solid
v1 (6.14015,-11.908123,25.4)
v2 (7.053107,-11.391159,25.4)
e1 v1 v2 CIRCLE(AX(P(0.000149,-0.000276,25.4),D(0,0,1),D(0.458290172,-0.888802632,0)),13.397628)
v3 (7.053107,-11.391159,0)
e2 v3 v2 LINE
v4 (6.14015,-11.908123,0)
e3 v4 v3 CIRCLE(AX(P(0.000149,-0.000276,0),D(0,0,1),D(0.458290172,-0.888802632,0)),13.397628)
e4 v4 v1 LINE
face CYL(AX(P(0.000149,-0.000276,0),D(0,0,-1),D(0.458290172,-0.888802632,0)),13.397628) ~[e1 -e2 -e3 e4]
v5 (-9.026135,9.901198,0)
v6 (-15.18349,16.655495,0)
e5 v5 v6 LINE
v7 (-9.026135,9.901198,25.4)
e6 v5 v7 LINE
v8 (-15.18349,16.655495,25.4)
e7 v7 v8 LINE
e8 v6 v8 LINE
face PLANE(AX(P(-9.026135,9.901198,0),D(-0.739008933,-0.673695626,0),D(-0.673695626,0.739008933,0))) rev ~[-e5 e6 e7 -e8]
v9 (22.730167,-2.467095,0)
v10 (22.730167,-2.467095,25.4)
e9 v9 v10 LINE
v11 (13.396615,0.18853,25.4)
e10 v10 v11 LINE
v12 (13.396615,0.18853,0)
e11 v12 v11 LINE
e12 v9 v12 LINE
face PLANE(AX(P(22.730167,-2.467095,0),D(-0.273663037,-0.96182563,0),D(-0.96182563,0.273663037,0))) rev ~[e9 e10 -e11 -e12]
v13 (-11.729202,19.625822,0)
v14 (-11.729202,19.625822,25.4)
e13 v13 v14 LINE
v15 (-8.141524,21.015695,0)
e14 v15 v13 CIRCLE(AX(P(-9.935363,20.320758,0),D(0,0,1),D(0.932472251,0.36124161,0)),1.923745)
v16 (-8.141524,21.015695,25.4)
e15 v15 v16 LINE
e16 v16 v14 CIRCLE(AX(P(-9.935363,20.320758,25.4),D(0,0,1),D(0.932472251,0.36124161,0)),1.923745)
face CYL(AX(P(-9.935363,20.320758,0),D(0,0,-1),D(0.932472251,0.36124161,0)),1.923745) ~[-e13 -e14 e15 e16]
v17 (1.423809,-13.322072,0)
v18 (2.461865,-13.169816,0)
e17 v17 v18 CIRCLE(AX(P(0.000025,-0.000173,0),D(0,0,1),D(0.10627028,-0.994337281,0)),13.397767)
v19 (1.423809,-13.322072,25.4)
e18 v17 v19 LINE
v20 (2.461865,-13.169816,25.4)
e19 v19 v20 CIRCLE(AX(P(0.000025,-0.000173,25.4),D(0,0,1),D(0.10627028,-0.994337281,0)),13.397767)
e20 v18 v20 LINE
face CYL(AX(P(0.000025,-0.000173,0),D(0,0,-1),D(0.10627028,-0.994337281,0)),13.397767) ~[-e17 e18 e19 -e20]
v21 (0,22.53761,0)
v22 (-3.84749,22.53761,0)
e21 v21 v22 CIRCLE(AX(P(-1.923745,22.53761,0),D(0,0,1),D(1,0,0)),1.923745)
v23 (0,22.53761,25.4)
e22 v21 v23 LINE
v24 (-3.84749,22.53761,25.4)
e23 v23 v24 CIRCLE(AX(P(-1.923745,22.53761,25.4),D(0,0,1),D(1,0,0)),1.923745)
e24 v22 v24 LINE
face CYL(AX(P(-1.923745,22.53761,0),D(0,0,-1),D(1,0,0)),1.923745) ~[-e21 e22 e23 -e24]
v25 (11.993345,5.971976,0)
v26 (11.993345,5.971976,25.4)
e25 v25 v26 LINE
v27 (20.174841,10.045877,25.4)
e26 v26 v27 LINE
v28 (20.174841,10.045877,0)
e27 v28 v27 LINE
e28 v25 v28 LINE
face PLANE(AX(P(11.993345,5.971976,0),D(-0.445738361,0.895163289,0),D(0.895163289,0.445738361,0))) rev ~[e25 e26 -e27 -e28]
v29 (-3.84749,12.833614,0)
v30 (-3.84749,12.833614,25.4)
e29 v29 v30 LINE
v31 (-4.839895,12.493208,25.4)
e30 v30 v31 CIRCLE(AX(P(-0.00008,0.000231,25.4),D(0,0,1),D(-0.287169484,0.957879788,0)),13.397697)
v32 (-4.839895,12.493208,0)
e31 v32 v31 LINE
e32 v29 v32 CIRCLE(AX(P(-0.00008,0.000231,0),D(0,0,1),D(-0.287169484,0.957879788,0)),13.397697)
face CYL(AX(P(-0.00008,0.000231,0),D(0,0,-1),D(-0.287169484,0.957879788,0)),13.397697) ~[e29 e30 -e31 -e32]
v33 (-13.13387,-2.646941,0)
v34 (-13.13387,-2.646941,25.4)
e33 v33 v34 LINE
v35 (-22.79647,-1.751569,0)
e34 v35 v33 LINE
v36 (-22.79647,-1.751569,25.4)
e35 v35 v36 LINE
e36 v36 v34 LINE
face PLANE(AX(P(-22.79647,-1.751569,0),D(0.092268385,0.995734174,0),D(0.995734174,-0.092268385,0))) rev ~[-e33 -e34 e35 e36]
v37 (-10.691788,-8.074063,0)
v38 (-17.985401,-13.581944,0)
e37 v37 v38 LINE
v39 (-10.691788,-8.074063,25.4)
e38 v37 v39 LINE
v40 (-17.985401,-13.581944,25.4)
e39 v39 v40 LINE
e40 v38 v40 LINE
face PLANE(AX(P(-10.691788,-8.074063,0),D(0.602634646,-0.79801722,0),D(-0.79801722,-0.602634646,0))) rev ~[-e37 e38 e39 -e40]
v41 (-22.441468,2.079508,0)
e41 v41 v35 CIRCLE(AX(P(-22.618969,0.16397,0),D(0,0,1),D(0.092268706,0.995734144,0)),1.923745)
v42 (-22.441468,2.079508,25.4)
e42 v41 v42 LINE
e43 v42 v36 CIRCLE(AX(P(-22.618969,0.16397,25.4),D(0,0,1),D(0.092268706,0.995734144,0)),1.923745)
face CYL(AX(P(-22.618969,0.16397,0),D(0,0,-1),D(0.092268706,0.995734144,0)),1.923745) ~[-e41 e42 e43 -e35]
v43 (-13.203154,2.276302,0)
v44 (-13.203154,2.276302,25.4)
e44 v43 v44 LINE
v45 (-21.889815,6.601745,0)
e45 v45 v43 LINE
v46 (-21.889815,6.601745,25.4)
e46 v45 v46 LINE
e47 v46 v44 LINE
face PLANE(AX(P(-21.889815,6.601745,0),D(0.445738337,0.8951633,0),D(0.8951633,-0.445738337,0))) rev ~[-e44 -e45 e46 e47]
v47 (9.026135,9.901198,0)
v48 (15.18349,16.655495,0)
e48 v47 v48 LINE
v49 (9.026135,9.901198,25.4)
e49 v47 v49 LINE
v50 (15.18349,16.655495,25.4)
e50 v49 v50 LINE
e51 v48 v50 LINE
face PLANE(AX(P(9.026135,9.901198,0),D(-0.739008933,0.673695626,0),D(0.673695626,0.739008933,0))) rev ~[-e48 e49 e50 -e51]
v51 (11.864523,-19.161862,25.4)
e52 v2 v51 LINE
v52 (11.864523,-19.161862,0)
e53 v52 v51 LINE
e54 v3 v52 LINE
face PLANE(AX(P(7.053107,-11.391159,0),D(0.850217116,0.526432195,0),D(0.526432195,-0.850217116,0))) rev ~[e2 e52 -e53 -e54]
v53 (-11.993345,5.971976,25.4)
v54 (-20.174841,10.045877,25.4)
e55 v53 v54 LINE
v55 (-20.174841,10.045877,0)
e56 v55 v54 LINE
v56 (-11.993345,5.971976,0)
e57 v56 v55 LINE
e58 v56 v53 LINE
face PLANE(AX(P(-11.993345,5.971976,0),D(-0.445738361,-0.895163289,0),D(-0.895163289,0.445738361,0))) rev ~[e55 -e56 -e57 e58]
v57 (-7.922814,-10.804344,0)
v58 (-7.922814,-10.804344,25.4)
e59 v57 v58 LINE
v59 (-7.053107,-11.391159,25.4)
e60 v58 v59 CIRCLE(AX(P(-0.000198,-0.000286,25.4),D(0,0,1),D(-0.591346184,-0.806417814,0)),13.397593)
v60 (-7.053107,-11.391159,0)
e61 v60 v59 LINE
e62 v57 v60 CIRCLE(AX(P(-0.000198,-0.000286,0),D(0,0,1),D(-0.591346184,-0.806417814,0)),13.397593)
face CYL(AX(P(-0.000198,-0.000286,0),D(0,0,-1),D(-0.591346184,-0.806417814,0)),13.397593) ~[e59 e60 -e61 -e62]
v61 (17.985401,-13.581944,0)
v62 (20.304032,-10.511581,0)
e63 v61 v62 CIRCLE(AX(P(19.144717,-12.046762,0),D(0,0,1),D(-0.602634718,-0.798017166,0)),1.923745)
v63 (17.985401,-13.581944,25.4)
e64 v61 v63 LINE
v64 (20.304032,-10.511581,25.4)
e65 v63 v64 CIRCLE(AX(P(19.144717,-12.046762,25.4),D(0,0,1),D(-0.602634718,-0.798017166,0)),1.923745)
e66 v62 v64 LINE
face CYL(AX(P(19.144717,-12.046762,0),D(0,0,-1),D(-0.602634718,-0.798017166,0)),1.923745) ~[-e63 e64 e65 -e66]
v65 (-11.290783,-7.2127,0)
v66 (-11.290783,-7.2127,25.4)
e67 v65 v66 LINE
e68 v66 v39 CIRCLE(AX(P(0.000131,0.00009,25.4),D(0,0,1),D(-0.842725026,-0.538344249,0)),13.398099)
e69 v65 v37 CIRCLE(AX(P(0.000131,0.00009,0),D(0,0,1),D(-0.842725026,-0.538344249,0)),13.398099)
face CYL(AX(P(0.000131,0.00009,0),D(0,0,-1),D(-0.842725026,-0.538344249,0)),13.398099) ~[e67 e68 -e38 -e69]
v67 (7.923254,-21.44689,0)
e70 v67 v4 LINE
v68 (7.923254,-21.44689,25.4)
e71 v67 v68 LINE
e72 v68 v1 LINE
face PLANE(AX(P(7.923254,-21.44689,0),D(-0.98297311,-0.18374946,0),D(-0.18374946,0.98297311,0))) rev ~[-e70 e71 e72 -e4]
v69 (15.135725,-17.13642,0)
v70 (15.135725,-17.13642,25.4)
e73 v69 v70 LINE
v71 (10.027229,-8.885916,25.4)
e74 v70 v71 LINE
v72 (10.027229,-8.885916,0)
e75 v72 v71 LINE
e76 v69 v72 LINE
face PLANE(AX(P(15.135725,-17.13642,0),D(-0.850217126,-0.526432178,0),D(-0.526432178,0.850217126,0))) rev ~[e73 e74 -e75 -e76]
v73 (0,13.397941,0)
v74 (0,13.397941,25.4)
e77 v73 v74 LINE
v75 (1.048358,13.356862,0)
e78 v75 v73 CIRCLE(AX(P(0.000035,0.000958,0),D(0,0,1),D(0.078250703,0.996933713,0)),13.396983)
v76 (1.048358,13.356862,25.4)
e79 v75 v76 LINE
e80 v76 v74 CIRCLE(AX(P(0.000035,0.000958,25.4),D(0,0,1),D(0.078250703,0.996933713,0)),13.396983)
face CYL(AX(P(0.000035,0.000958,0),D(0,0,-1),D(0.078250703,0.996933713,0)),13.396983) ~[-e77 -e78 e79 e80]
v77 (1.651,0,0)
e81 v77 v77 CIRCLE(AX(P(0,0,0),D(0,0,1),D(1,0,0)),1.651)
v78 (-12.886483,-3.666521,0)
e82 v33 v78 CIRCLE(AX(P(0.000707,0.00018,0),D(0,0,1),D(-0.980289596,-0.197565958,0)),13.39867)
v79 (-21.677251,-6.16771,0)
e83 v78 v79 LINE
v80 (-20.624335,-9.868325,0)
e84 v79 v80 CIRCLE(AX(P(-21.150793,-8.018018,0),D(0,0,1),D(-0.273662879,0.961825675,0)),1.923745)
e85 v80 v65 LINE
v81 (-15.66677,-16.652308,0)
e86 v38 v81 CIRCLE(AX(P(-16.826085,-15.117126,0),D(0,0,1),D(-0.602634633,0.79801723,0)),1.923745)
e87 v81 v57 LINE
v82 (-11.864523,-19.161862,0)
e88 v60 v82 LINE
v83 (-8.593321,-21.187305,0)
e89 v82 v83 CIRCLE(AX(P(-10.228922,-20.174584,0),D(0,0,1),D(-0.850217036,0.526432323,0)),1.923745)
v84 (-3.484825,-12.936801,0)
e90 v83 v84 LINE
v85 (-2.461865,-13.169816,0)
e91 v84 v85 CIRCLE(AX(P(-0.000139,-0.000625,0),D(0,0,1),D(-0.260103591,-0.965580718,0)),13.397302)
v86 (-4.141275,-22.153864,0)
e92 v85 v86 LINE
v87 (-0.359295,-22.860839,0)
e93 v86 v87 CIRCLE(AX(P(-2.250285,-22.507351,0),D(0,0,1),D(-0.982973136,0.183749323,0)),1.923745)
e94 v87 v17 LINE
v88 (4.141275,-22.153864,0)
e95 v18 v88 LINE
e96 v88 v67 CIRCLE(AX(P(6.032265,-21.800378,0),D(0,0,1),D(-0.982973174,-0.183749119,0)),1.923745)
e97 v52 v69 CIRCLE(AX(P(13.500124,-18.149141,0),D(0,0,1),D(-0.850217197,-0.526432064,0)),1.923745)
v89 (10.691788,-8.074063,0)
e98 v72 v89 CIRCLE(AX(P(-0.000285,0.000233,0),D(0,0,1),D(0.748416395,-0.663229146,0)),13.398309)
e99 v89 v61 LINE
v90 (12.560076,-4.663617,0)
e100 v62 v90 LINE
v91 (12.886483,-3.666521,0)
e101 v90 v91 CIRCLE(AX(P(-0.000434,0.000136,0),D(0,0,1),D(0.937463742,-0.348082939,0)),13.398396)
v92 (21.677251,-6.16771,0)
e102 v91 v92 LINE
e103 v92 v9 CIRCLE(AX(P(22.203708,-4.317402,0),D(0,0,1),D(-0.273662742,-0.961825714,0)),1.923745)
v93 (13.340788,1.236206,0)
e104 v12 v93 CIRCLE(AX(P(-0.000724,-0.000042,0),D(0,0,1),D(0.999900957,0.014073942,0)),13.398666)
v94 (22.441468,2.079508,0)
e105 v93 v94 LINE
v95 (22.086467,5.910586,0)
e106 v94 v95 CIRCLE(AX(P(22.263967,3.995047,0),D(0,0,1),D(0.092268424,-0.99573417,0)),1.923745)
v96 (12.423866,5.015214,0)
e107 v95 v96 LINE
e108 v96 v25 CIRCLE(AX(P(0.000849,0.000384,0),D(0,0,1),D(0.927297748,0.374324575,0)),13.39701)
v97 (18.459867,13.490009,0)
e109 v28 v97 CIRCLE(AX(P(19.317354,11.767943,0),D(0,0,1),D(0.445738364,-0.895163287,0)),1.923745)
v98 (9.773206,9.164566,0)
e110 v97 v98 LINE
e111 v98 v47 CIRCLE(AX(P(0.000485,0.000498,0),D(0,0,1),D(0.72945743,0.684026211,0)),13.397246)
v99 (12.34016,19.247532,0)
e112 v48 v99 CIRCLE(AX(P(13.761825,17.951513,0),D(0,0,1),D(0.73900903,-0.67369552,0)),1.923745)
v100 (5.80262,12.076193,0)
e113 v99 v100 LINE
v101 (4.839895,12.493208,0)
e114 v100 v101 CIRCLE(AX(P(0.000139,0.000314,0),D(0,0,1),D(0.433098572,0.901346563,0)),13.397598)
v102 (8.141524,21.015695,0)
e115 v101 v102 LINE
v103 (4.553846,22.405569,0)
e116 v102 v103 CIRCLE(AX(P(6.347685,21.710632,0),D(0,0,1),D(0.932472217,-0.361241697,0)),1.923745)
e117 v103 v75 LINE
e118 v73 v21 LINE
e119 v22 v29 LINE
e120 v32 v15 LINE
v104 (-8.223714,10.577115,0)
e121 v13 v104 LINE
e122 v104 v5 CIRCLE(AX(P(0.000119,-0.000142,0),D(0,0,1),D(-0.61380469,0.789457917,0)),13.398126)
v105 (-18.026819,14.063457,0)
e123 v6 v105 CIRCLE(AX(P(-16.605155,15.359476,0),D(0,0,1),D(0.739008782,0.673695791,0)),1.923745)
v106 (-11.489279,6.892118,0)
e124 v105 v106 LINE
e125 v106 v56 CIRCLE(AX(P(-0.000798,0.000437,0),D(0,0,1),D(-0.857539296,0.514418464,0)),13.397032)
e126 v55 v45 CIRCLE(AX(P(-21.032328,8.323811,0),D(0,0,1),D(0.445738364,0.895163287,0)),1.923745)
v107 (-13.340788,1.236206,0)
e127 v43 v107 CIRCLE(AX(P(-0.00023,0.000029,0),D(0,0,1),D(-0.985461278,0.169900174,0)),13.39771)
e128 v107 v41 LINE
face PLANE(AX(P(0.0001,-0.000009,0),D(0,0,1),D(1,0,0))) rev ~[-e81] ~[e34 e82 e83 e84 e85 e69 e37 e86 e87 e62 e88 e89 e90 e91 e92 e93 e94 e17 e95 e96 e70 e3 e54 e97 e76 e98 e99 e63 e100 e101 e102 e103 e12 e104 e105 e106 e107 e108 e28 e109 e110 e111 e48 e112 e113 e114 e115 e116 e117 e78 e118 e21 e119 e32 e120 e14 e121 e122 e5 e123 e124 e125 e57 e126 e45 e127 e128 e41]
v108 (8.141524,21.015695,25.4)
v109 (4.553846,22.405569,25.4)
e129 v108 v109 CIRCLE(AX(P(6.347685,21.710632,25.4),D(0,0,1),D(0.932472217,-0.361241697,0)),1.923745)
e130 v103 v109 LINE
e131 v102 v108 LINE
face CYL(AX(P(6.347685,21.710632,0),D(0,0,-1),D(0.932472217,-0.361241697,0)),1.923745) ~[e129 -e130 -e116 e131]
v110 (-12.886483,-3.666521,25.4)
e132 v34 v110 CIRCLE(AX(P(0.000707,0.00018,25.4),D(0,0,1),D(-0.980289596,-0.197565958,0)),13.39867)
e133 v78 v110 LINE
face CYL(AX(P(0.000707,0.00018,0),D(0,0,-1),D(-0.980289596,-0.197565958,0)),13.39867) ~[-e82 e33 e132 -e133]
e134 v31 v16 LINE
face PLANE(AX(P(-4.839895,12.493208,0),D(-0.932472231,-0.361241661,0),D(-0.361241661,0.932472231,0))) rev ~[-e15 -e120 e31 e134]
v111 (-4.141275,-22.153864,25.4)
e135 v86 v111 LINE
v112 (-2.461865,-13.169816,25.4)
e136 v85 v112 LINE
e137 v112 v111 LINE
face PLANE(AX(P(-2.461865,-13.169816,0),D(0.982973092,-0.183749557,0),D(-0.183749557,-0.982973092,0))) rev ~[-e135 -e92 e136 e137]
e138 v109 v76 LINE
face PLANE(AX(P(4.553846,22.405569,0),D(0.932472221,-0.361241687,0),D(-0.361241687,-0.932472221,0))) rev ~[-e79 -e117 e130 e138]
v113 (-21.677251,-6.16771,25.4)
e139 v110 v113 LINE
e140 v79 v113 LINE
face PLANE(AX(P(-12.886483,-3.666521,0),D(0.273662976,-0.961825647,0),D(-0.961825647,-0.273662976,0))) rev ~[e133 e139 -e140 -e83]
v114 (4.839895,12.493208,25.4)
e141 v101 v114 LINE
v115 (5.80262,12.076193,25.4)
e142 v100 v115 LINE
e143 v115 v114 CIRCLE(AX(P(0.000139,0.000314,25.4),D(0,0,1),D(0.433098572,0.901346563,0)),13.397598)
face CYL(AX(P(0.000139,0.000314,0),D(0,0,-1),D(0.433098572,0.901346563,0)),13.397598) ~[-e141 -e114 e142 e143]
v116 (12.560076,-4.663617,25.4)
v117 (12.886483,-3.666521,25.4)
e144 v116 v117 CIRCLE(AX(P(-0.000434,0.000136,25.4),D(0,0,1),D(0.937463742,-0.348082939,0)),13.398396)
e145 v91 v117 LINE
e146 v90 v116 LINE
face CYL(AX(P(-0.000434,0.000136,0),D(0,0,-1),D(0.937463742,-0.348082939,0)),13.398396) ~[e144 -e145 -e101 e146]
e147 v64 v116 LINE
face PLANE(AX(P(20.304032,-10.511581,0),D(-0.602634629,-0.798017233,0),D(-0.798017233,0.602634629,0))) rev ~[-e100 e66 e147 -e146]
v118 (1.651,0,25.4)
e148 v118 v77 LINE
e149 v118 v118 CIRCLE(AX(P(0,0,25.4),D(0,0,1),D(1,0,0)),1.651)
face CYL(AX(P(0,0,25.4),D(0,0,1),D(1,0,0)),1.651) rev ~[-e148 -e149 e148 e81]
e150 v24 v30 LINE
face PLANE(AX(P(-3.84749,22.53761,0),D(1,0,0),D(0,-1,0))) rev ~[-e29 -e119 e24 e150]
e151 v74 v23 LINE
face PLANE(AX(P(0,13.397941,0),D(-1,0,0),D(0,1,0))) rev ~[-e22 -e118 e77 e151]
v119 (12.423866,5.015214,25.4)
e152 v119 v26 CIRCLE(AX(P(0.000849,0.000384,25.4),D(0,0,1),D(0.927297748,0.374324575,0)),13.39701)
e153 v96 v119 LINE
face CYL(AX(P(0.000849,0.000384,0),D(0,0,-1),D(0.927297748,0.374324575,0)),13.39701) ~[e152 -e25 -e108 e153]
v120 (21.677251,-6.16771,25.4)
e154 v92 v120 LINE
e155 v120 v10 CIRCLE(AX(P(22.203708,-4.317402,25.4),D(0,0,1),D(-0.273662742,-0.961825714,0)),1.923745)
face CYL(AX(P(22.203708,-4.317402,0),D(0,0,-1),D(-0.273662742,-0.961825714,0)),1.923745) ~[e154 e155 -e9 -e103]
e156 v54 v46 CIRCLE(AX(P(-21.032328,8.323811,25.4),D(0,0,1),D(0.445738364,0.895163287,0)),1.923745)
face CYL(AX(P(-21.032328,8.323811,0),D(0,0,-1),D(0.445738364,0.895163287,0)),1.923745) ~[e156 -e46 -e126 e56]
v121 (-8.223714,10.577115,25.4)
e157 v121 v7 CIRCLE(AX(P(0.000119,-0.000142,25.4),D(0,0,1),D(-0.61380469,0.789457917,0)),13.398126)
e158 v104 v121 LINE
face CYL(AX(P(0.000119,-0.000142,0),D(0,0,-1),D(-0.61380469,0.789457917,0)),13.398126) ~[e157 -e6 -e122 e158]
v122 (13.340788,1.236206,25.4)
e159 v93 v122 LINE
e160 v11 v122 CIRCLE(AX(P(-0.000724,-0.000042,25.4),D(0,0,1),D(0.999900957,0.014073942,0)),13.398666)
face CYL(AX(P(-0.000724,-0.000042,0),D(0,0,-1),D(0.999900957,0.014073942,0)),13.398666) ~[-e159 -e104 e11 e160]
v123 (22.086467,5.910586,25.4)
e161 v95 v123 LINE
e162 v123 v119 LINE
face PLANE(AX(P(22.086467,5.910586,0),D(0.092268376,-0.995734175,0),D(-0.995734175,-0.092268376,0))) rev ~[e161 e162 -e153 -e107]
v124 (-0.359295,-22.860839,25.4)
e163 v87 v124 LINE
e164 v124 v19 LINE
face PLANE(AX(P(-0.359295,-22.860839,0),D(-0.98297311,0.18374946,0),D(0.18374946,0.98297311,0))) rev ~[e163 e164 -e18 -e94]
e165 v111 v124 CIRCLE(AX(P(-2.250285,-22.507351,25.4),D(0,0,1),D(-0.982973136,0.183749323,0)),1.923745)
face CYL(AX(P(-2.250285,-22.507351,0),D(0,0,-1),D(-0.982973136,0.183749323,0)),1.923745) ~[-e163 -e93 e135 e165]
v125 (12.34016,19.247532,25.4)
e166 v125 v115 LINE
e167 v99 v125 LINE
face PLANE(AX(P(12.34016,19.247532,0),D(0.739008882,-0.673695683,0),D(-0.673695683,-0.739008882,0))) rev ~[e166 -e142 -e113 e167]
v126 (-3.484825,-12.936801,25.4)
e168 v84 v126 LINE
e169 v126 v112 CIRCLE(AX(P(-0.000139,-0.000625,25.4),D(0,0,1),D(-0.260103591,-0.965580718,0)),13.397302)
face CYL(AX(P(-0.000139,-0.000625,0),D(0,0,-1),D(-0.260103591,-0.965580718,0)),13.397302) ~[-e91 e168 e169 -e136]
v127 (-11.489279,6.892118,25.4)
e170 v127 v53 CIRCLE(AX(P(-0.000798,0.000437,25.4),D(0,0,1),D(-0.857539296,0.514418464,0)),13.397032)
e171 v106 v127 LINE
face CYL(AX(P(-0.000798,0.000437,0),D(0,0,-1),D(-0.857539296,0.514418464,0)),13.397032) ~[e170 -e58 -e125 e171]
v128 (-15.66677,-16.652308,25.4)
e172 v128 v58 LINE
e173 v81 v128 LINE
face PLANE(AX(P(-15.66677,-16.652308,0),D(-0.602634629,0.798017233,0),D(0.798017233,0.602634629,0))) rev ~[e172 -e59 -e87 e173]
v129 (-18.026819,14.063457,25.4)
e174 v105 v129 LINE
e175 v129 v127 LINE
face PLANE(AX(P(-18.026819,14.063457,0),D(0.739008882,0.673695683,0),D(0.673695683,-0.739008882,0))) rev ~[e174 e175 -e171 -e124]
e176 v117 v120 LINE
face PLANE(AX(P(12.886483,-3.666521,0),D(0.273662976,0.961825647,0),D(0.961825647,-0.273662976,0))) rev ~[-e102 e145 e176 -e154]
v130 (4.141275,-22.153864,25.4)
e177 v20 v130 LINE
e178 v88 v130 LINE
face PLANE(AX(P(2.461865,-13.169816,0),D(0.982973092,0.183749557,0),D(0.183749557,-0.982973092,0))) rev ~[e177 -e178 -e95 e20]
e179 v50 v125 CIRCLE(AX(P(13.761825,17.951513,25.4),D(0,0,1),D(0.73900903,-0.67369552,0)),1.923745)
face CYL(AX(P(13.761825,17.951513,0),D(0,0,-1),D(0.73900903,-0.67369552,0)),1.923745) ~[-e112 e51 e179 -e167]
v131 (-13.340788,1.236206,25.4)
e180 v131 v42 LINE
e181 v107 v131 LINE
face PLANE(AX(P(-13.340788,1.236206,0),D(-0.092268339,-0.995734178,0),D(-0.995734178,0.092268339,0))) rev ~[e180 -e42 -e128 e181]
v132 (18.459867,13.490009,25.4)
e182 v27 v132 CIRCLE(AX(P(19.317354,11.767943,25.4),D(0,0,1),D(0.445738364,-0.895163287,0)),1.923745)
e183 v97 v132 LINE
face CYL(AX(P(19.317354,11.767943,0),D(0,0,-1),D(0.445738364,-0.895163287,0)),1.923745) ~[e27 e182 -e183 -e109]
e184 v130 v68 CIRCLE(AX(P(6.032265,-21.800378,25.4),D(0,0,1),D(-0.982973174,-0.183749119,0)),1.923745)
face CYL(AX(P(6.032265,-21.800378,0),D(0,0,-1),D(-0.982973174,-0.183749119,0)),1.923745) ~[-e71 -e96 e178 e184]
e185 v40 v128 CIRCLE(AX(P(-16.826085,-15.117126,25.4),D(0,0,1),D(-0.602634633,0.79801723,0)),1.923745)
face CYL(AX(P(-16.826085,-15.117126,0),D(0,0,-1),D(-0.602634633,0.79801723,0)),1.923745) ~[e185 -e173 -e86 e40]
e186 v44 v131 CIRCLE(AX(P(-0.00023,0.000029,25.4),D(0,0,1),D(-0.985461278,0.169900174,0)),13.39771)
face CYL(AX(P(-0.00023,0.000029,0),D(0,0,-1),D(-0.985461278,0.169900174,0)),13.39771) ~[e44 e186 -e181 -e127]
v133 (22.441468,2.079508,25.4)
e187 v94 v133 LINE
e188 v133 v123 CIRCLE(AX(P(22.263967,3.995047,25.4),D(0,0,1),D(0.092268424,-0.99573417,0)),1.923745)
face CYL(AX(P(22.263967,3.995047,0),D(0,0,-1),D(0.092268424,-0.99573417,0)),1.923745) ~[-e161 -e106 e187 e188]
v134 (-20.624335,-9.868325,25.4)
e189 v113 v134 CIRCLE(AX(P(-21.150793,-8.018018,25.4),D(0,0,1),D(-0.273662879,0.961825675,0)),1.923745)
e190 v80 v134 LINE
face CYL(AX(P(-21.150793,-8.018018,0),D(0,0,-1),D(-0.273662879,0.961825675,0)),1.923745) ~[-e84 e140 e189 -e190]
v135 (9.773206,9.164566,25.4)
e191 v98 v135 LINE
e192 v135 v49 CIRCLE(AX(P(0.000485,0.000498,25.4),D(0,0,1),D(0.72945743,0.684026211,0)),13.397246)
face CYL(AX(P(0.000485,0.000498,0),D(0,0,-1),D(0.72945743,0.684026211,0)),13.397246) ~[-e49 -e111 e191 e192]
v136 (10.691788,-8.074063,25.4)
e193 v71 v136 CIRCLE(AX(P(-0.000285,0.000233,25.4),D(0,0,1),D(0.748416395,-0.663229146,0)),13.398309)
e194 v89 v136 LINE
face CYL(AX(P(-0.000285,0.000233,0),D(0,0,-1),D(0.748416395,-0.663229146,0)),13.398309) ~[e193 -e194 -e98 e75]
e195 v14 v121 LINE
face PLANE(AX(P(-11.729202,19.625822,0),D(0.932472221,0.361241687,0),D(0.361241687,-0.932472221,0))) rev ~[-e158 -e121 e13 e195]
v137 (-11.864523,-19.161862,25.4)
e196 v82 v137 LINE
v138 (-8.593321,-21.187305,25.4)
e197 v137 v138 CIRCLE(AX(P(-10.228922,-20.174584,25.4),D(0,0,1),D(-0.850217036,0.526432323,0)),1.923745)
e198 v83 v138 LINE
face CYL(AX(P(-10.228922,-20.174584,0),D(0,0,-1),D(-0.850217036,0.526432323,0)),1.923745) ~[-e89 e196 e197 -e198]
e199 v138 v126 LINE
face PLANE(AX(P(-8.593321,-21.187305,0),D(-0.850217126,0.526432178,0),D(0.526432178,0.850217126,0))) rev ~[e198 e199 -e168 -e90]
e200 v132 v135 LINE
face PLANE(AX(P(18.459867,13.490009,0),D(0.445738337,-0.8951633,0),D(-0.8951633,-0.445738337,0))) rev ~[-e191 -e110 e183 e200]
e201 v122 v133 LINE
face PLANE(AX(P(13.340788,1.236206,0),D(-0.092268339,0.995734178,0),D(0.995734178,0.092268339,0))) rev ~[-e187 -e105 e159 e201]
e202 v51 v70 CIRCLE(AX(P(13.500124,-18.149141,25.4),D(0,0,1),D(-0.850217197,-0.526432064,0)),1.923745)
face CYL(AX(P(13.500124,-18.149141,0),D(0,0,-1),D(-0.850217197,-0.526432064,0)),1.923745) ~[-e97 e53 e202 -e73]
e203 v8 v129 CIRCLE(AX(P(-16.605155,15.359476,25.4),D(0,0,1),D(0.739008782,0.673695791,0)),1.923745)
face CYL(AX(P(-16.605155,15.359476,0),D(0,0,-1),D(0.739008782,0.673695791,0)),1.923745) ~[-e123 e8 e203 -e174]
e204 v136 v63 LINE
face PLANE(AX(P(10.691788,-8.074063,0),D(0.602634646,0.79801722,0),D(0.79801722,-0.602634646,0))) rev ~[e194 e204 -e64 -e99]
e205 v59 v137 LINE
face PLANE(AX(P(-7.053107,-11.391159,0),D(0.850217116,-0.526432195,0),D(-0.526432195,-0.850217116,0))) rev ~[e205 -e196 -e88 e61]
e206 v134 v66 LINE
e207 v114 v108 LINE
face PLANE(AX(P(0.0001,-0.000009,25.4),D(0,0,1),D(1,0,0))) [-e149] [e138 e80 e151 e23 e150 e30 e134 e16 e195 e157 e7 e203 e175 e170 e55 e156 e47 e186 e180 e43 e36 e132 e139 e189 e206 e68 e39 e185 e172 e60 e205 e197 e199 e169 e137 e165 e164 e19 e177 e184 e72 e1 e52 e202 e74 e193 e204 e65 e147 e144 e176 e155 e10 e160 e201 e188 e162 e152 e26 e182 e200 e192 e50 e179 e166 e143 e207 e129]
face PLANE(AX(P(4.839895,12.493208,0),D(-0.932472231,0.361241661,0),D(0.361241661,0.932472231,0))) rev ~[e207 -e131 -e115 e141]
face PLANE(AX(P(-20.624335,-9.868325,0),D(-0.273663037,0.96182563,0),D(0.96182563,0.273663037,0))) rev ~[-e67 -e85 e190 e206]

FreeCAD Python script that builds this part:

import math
import FreeCAD as App
import Part
import Sketcher
from FreeCAD import Vector
Q = App.Units.Quantity

doc = App.newDocument("Part")
params = doc.addObject("Spreadsheet::Sheet", "Params")
for row, (alias, value) in enumerate([
    ("pad1_length", "1 in"),
    ("sketch2_diameter", "0.13 in"),
    ("pocket1_length", "1 in"),
], start=1):
    params.set(f"A{row}", alias)
    params.set(f"B{row}", "=" + value)
    params.setAlias(f"B{row}", alias)

body = doc.addObject("PartDesign::Body", "Body")

sketch1 = body.newObject("Sketcher::SketchObject", "Sketch")
sketch1.AttachmentSupport = (doc.getObject("XY_Plane"), [""])
sketch1.MapMode = "FlatFace"
sketch1.addGeometry([
    Part.ArcOfCircle(Part.Circle(Vector(-0.000724, -0.000042, 0), Vector(0, 0, 1), 13.398666), math.radians(0.806404), math.radians(5.294011)),
    Part.LineSegment(Vector(13.340788, 1.236206, 0), Vector(22.441468, 2.079508, 0)),
    Part.ArcOfCircle(Part.Circle(Vector(22.263967, 3.995047, 0), Vector(0, 0, 1), 1.923745), math.radians(-84.705879), math.radians(95.294094)),
    Part.LineSegment(Vector(22.086467, 5.910586, 0), Vector(12.423866, 5.015214, 0)),
    Part.ArcOfCircle(Part.Circle(Vector(0.000849, 0.000384, 0), Vector(0, 0, 1), 13.39701), math.radians(21.982574), math.radians(26.470736)),
    Part.LineSegment(Vector(11.993345, 5.971976, 0), Vector(20.174841, 10.045877, 0)),
    Part.ArcOfCircle(Part.Circle(Vector(19.317354, 11.767943, 0), Vector(0, 0, 1), 1.923745), math.radians(-63.529411), math.radians(116.470589)),
    Part.LineSegment(Vector(18.459867, 13.490009, 0), Vector(9.773206, 9.164566, 0)),
    Part.ArcOfCircle(Part.Circle(Vector(0.000485, 0.000498, 0), Vector(0, 0, 1), 13.397246), math.radians(43.159072), math.radians(47.647155)),
    Part.LineSegment(Vector(9.026135, 9.901198, 0), Vector(15.18349, 16.655495, 0)),
    Part.ArcOfCircle(Part.Circle(Vector(13.761825, 17.951513, 0), Vector(0, 0, 1), 1.923745), math.radians(-42.352932), math.radians(137.647066)),
    Part.LineSegment(Vector(12.34016, 19.247532, 0), Vector(5.80262, 12.076193, 0)),
    Part.ArcOfCircle(Part.Circle(Vector(0.000139, 0.000314, 0), Vector(0, 0, 1), 13.397598), math.radians(64.335635), math.radians(68.823598)),
    Part.LineSegment(Vector(4.839895, 12.493208, 0), Vector(8.141524, 21.015695, 0)),
    Part.ArcOfCircle(Part.Circle(Vector(6.347685, 21.710632, 0), Vector(0, 0, 1), 1.923745), math.radians(-21.176473), math.radians(158.823527)),
    Part.LineSegment(Vector(4.553846, 22.405569, 0), Vector(1.048358, 13.356862, 0)),
    Part.ArcOfCircle(Part.Circle(Vector(0.000035, 0.000958, 0), Vector(0, 0, 1), 13.396983), math.radians(85.511977), math.radians(90.000148)),
    Part.LineSegment(Vector(0, 13.397941, 0), Vector(0, 22.53761, 0)),
    Part.ArcOfCircle(Part.Circle(Vector(-1.923745, 22.53761, 0), Vector(0, 0, 1), 1.923745), math.radians(0), math.radians(180)),
    Part.LineSegment(Vector(-3.84749, 22.53761, 0), Vector(-3.84749, 12.833614, 0)),
    Part.ArcOfCircle(Part.Circle(Vector(-0.00008, 0.000231, 0), Vector(0, 0, 1), 13.397697), math.radians(106.688573), math.radians(111.176509)),
    Part.LineSegment(Vector(-4.839895, 12.493208, 0), Vector(-8.141524, 21.015695, 0)),
    Part.ArcOfCircle(Part.Circle(Vector(-9.935363, 20.320758, 0), Vector(0, 0, 1), 1.923745), math.radians(21.176467), math.radians(201.17645)),
    Part.LineSegment(Vector(-11.729202, 19.625822, 0), Vector(-8.223714, 10.577115, 0)),
    Part.ArcOfCircle(Part.Circle(Vector(0.000119, -0.000142, 0), Vector(0, 0, 1), 13.398126), math.radians(127.865118), math.radians(132.352909)),
    Part.LineSegment(Vector(-9.026135, 9.901198, 0), Vector(-15.18349, 16.655495, 0)),
    Part.ArcOfCircle(Part.Circle(Vector(-16.605155, 15.359476, 0), Vector(0, 0, 1), 1.923745), math.radians(42.352953), math.radians(222.352955)),
    Part.LineSegment(Vector(-18.026819, 14.063457, 0), Vector(-11.489279, 6.892118, 0)),
    Part.ArcOfCircle(Part.Circle(Vector(-0.000798, 0.000437, 0), Vector(0, 0, 1), 13.397032), math.radians(149.041408), math.radians(153.529567)),
    Part.LineSegment(Vector(-11.993345, 5.971976, 0), Vector(-20.174841, 10.045877, 0)),
    Part.ArcOfCircle(Part.Circle(Vector(-21.032328, 8.323811, 0), Vector(0, 0, 1), 1.923745), math.radians(63.529411), math.radians(243.529411)),
    Part.LineSegment(Vector(-21.889815, 6.601745, 0), Vector(-13.203154, 2.276302, 0)),
    Part.ArcOfCircle(Part.Circle(Vector(-0.00023, 0.000029, 0), Vector(0, 0, 1), 13.39771), math.radians(170.217985), math.radians(174.705914)),
    Part.LineSegment(Vector(-13.340788, 1.236206, 0), Vector(-22.441468, 2.079508, 0)),
    Part.ArcOfCircle(Part.Circle(Vector(-22.618969, 0.16397, 0), Vector(0, 0, 1), 1.923745), math.radians(84.705862), math.radians(264.705889)),
    Part.LineSegment(Vector(-22.79647, -1.751569, 0), Vector(-13.13387, -2.646941, 0)),
    Part.ArcOfCircle(Part.Circle(Vector(0.000707, 0.00018, 0), Vector(0, 0, 1), 13.39867), math.radians(-168.605341), math.radians(-164.117732)),
    Part.LineSegment(Vector(-12.886483, -3.666521, 0), Vector(-21.677251, -6.16771, 0)),
    Part.ArcOfCircle(Part.Circle(Vector(-21.150793, -8.018018, 0), Vector(0, 0, 1), 1.923745), math.radians(105.882346), math.radians(285.882367)),
    Part.LineSegment(Vector(-20.624335, -9.868325, 0), Vector(-11.290783, -7.2127, 0)),
    Part.ArcOfCircle(Part.Circle(Vector(0.000131, 0.00009, 0), Vector(0, 0, 1), 13.398099), math.radians(-147.429004), math.radians(-142.941209)),
    Part.LineSegment(Vector(-10.691788, -8.074063, 0), Vector(-17.985401, -13.581944, 0)),
    Part.ArcOfCircle(Part.Circle(Vector(-16.826085, -15.117126, 0), Vector(0, 0, 1), 1.923745), math.radians(127.058823), math.radians(307.058817)),
    Part.LineSegment(Vector(-15.66677, -16.652308, 0), Vector(-7.922814, -10.804344, 0)),
    Part.ArcOfCircle(Part.Circle(Vector(-0.000198, -0.000286, 0), Vector(0, 0, 1), 13.397593), math.radians(-126.252596), math.radians(-121.764629)),
    Part.LineSegment(Vector(-7.053107, -11.391159, 0), Vector(-11.864523, -19.161862, 0)),
    Part.ArcOfCircle(Part.Circle(Vector(-10.228922, -20.174584, 0), Vector(0, 0, 1), 1.923745), math.radians(148.235283), math.radians(328.235293)),
    Part.LineSegment(Vector(-8.593321, -21.187305, 0), Vector(-3.484825, -12.936801, 0)),
    Part.ArcOfCircle(Part.Circle(Vector(-0.000139, -0.000625, 0), Vector(0, 0, 1), 13.397302), math.radians(-105.076209), math.radians(-100.588142)),
    Part.LineSegment(Vector(-2.461865, -13.169816, 0), Vector(-4.141275, -22.153864, 0)),
    Part.ArcOfCircle(Part.Circle(Vector(-2.250285, -22.507351, 0), Vector(0, 0, 1), 1.923745), math.radians(169.411776), math.radians(349.411741)),
    Part.LineSegment(Vector(-0.359295, -22.860839, 0), Vector(1.423809, -13.322072, 0)),
    Part.ArcOfCircle(Part.Circle(Vector(0.000025, -0.000173, 0), Vector(0, 0, 1), 13.397767), math.radians(-83.899642), math.radians(-79.411733)),
    Part.LineSegment(Vector(2.461865, -13.169816, 0), Vector(4.141275, -22.153864, 0)),
    Part.ArcOfCircle(Part.Circle(Vector(6.032265, -21.800378, 0), Vector(0, 0, 1), 1.923745), math.radians(-169.411788), math.radians(10.588247)),
    Part.LineSegment(Vector(7.923254, -21.44689, 0), Vector(6.14015, -11.908123, 0)),
    Part.ArcOfCircle(Part.Circle(Vector(0.000149, -0.000276, 0), Vector(0, 0, 1), 13.397628), math.radians(-62.72317), math.radians(-58.235214)),
    Part.LineSegment(Vector(7.053107, -11.391159, 0), Vector(11.864523, -19.161862, 0)),
    Part.ArcOfCircle(Part.Circle(Vector(13.500124, -18.149141, 0), Vector(0, 0, 1), 1.923745), math.radians(-148.235301), math.radians(31.764699)),
    Part.LineSegment(Vector(15.135725, -17.13642, 0), Vector(10.027229, -8.885916, 0)),
    Part.ArcOfCircle(Part.Circle(Vector(-0.000285, 0.000233, 0), Vector(0, 0, 1), 13.398309), math.radians(-41.546613), math.radians(-37.058882)),
    Part.LineSegment(Vector(10.691788, -8.074063, 0), Vector(17.985401, -13.581944, 0)),
    Part.ArcOfCircle(Part.Circle(Vector(19.144717, -12.046762, 0), Vector(0, 0, 1), 1.923745), math.radians(-127.058829), math.radians(52.941171)),
    Part.LineSegment(Vector(20.304032, -10.511581, 0), Vector(12.560076, -4.663617, 0)),
    Part.ArcOfCircle(Part.Circle(Vector(-0.000434, 0.000136, 0), Vector(0, 0, 1), 13.398396), math.radians(-20.370104), math.radians(-15.882406)),
    Part.LineSegment(Vector(12.886483, -3.666521, 0), Vector(21.677251, -6.16771, 0)),
    Part.ArcOfCircle(Part.Circle(Vector(22.203708, -4.317402, 0), Vector(0, 0, 1), 1.923745), math.radians(-105.882338), math.radians(74.117625)),
    Part.LineSegment(Vector(22.730167, -2.467095, 0), Vector(13.396615, 0.18853, 0)),
], False)
sketch1.addConstraint([
    Sketcher.Constraint("Coincident", 0, 2, 1, 1),
    Sketcher.Constraint("Coincident", 1, 2, 2, 1),
    Sketcher.Constraint("Coincident", 2, 2, 3, 1),
    Sketcher.Constraint("Coincident", 3, 2, 4, 1),
    Sketcher.Constraint("Coincident", 4, 2, 5, 1),
    Sketcher.Constraint("Coincident", 5, 2, 6, 1),
    Sketcher.Constraint("Coincident", 6, 2, 7, 1),
    Sketcher.Constraint("Coincident", 7, 2, 8, 1),
    Sketcher.Constraint("Coincident", 8, 2, 9, 1),
    Sketcher.Constraint("Coincident", 9, 2, 10, 1),
    Sketcher.Constraint("Coincident", 10, 2, 11, 1),
    Sketcher.Constraint("Coincident", 11, 2, 12, 1),
    Sketcher.Constraint("Coincident", 12, 2, 13, 1),
    Sketcher.Constraint("Coincident", 13, 2, 14, 1),
    Sketcher.Constraint("Coincident", 14, 2, 15, 1),
    Sketcher.Constraint("Coincident", 15, 2, 16, 1),
    Sketcher.Constraint("Coincident", 16, 2, 17, 1),
    Sketcher.Constraint("Coincident", 17, 2, 18, 1),
    Sketcher.Constraint("Coincident", 18, 2, 19, 1),
    Sketcher.Constraint("Coincident", 19, 2, 20, 1),
    Sketcher.Constraint("Coincident", 20, 2, 21, 1),
    Sketcher.Constraint("Coincident", 21, 2, 22, 1),
    Sketcher.Constraint("Coincident", 22, 2, 23, 1),
    Sketcher.Constraint("Coincident", 23, 2, 24, 1),
    Sketcher.Constraint("Coincident", 24, 2, 25, 1),
    Sketcher.Constraint("Coincident", 25, 2, 26, 1),
    Sketcher.Constraint("Coincident", 26, 2, 27, 1),
    Sketcher.Constraint("Coincident", 27, 2, 28, 1),
    Sketcher.Constraint("Coincident", 28, 2, 29, 1),
    Sketcher.Constraint("Coincident", 29, 2, 30, 1),
    Sketcher.Constraint("Coincident", 30, 2, 31, 1),
    Sketcher.Constraint("Coincident", 31, 2, 32, 1),
    Sketcher.Constraint("Coincident", 32, 2, 33, 1),
    Sketcher.Constraint("Coincident", 33, 2, 34, 1),
    Sketcher.Constraint("Coincident", 34, 2, 35, 1),
    Sketcher.Constraint("Coincident", 35, 2, 36, 1),
    Sketcher.Constraint("Coincident", 36, 2, 37, 1),
    Sketcher.Constraint("Coincident", 37, 2, 38, 1),
    Sketcher.Constraint("Coincident", 38, 2, 39, 1),
    Sketcher.Constraint("Coincident", 39, 2, 40, 1),
    Sketcher.Constraint("Coincident", 40, 2, 41, 1),
    Sketcher.Constraint("Coincident", 41, 2, 42, 1),
    Sketcher.Constraint("Coincident", 42, 2, 43, 1),
    Sketcher.Constraint("Coincident", 43, 2, 44, 1),
    Sketcher.Constraint("Coincident", 44, 2, 45, 1),
    Sketcher.Constraint("Coincident", 45, 2, 46, 1),
    Sketcher.Constraint("Coincident", 46, 2, 47, 1),
    Sketcher.Constraint("Coincident", 47, 2, 48, 1),
    Sketcher.Constraint("Coincident", 48, 2, 49, 1),
    Sketcher.Constraint("Coincident", 49, 2, 50, 1),
    Sketcher.Constraint("Coincident", 50, 2, 51, 1),
    Sketcher.Constraint("Coincident", 51, 2, 52, 1),
    Sketcher.Constraint("Coincident", 52, 2, 53, 1),
    Sketcher.Constraint("Coincident", 53, 2, 54, 1),
    Sketcher.Constraint("Coincident", 54, 2, 55, 1),
    Sketcher.Constraint("Coincident", 55, 2, 56, 1),
    Sketcher.Constraint("Coincident", 56, 2, 57, 1),
    Sketcher.Constraint("Coincident", 57, 2, 58, 1),
    Sketcher.Constraint("Coincident", 58, 2, 59, 1),
    Sketcher.Constraint("Coincident", 59, 2, 60, 1),
    Sketcher.Constraint("Coincident", 60, 2, 61, 1),
    Sketcher.Constraint("Coincident", 61, 2, 62, 1),
    Sketcher.Constraint("Coincident", 62, 2, 63, 1),
    Sketcher.Constraint("Coincident", 63, 2, 64, 1),
    Sketcher.Constraint("Coincident", 64, 2, 65, 1),
    Sketcher.Constraint("Coincident", 65, 2, 66, 1),
    Sketcher.Constraint("Coincident", 66, 2, 67, 1),
    Sketcher.Constraint("Coincident", 67, 2, 0, 1),
    Sketcher.Constraint("Vertical", 17),
    Sketcher.Constraint("Vertical", 19),
    Sketcher.Constraint("PointOnObject", 16, 2, -2),
    Sketcher.Constraint("Radius", 12, Q("13.397598 mm")),
    Sketcher.Constraint("Radius", 40, Q("13.398099 mm")),
    Sketcher.Constraint("Radius", 48, Q("13.397302 mm")),
    Sketcher.Constraint("Radius", 4, Q("13.39701 mm")),
    Sketcher.Constraint("Radius", 28, Q("13.397032 mm")),
    Sketcher.Constraint("Radius", 32, Q("13.39771 mm")),
    Sketcher.Constraint("Radius", 36, Q("13.39867 mm")),
    Sketcher.Constraint("Radius", 56, Q("13.397628 mm")),
    Sketcher.Constraint("Radius", 60, Q("13.398309 mm")),
    Sketcher.Constraint("Radius", 0, Q("13.398666 mm")),
    Sketcher.Constraint("Radius", 2, Q("1.923745 mm")),
    Sketcher.Constraint("Radius", 6, Q("1.923745 mm")),
    Sketcher.Constraint("Radius", 8, Q("13.397246 mm")),
    Sketcher.Constraint("Radius", 10, Q("1.923745 mm")),
    Sketcher.Constraint("Radius", 14, Q("1.923745 mm")),
    Sketcher.Constraint("Radius", 16, Q("13.396983 mm")),
    Sketcher.Constraint("Radius", 18, Q("1.923745 mm")),
    Sketcher.Constraint("Radius", 20, Q("13.397697 mm")),
    Sketcher.Constraint("Radius", 22, Q("1.923745 mm")),
    Sketcher.Constraint("Radius", 24, Q("13.398126 mm")),
    Sketcher.Constraint("Radius", 26, Q("1.923745 mm")),
    Sketcher.Constraint("Radius", 30, Q("1.923745 mm")),
    Sketcher.Constraint("Radius", 34, Q("1.923745 mm")),
    Sketcher.Constraint("Radius", 38, Q("1.923745 mm")),
    Sketcher.Constraint("Radius", 42, Q("1.923745 mm")),
    Sketcher.Constraint("Radius", 44, Q("13.397593 mm")),
    Sketcher.Constraint("Radius", 46, Q("1.923745 mm")),
    Sketcher.Constraint("Radius", 50, Q("1.923745 mm")),
    Sketcher.Constraint("Radius", 52, Q("13.397767 mm")),
    Sketcher.Constraint("Radius", 54, Q("1.923745 mm")),
    Sketcher.Constraint("Radius", 58, Q("1.923745 mm")),
    Sketcher.Constraint("Radius", 62, Q("1.923745 mm")),
    Sketcher.Constraint("Radius", 64, Q("13.398396 mm")),
    Sketcher.Constraint("Radius", 66, Q("1.923745 mm")),
    Sketcher.Constraint("DistanceY", 17, 1, 17, 2, Q("9.139669 mm")),
    Sketcher.Constraint("DistanceY", -1, 1, 8, 3, Q("0.000498 mm")),
    Sketcher.Constraint("DistanceX", 44, 3, -1, 1, Q("0.000198 mm")),
    Sketcher.Constraint("DistanceY", -1, 1, 8, 2, Q("9.901198 mm")),
    Sketcher.Constraint("DistanceY", -1, 1, 24, 2, Q("9.901198 mm")),
    Sketcher.Constraint("DistanceY", -1, 1, 31, 2, Q("2.276302 mm")),
    Sketcher.Constraint("DistanceY", 39, 2, -1, 1, Q("7.2127 mm")),
    Sketcher.Constraint("DistanceX", 41, 2, -1, 1, Q("17.985401 mm")),
    Sketcher.Constraint("DistanceY", 47, 2, -1, 1, Q("12.936801 mm")),
    Sketcher.Constraint("DistanceX", -1, 1, 61, 2, Q("17.985401 mm")),
    Sketcher.Constraint("Distance", 1, Q("9.139668 mm")),
    Sketcher.Constraint("Distance", 5, Q("9.139669 mm")),
    Sketcher.Constraint("Distance", 9, Q("9.139669 mm")),
    Sketcher.Constraint("Distance", 13, Q("9.139668 mm")),
    Sketcher.Constraint("Distance", 21, Q("9.139668 mm")),
    Sketcher.Constraint("Distance", 25, Q("9.139669 mm")),
    Sketcher.Constraint("Distance", 29, Q("9.139669 mm")),
    Sketcher.Constraint("Distance", 33, Q("9.139668 mm")),
    Sketcher.Constraint("Distance", 37, Q("9.139669 mm")),
    Sketcher.Constraint("Distance", 41, Q("9.139669 mm")),
    Sketcher.Constraint("Distance", 45, Q("9.139669 mm")),
    Sketcher.Constraint("Distance", 49, Q("9.139668 mm")),
    Sketcher.Constraint("Distance", 53, Q("9.139668 mm")),
    Sketcher.Constraint("Distance", 57, Q("9.139669 mm")),
    Sketcher.Constraint("Distance", 61, Q("9.139669 mm")),
    Sketcher.Constraint("Distance", 65, Q("9.139669 mm")),
    Sketcher.Constraint("DistanceY", 19, 2, 19, 1, Q("9.703996 mm")),
    Sketcher.Constraint("DistanceX", -1, 1, 4, 3, Q("0.000849 mm")),
    Sketcher.Constraint("DistanceX", -1, 1, 12, 3, Q("0.000139 mm")),
    Sketcher.Constraint("DistanceY", -1, 1, 18, 3, Q("22.53761 mm")),
    Sketcher.Constraint("DistanceY", -1, 1, 20, 3, Q("0.000231 mm")),
    Sketcher.Constraint("DistanceY", -1, 1, 22, 3, Q("20.320758 mm")),
    Sketcher.Constraint("DistanceX", -1, 1, 24, 3, Q("0.000119 mm")),
    Sketcher.Constraint("DistanceY", 24, 3, -1, 1, Q("0.000142 mm")),
    Sketcher.Constraint("DistanceY", -1, 1, 30, 3, Q("8.323811 mm")),
    Sketcher.Constraint("DistanceX", 32, 3, -1, 1, Q("0.00023 mm")),
    Sketcher.Constraint("DistanceX", 34, 3, -1, 1, Q("22.618969 mm")),
    Sketcher.Constraint("DistanceY", -1, 1, 34, 3, Q("0.16397 mm")),
    Sketcher.Constraint("DistanceY", -1, 1, 36, 3, Q("0.00018 mm")),
    Sketcher.Constraint("DistanceX", -1, 1, 40, 3, Q("0.000131 mm")),
    Sketcher.Constraint("DistanceX", 48, 3, -1, 1, Q("0.000139 mm")),
    Sketcher.Constraint("DistanceY", 50, 3, -1, 1, Q("22.507351 mm")),
    Sketcher.Constraint("DistanceX", -1, 1, 56, 3, Q("0.000149 mm")),
    Sketcher.Constraint("DistanceY", 58, 3, -1, 1, Q("18.149141 mm")),
    Sketcher.Constraint("DistanceX", -1, 1, 66, 3, Q("22.203708 mm")),
    Sketcher.Constraint("DistanceX", -1, 1, 0, 2, Q("13.340788 mm")),
    Sketcher.Constraint("DistanceX", -1, 1, 1, 2, Q("22.441468 mm")),
    Sketcher.Constraint("DistanceY", -1, 1, 1, 2, Q("2.079508 mm")),
    Sketcher.Constraint("DistanceX", -1, 1, 5, 2, Q("20.174841 mm")),
    Sketcher.Constraint("DistanceY", -1, 1, 6, 2, Q("13.490009 mm")),
    Sketcher.Constraint("DistanceX", -1, 1, 9, 2, Q("15.18349 mm")),
    Sketcher.Constraint("DistanceX", -1, 1, 10, 2, Q("12.34016 mm")),
    Sketcher.Constraint("DistanceX", -1, 1, 11, 2, Q("5.80262 mm")),
    Sketcher.Constraint("DistanceY", -1, 1, 14, 2, Q("22.405569 mm")),
    Sketcher.Constraint("DistanceY", -1, 1, 16, 2, Q("13.397941 mm")),
    Sketcher.Constraint("DistanceY", -1, 1, 18, 2, Q("22.53761 mm")),
    Sketcher.Constraint("DistanceY", -1, 1, 22, 2, Q("19.625822 mm")),
    Sketcher.Constraint("DistanceX", 25, 2, -1, 1, Q("15.18349 mm")),
    Sketcher.Constraint("DistanceX", 26, 2, -1, 1, Q("18.026819 mm")),
    Sketcher.Constraint("DistanceX", 27, 2, -1, 1, Q("11.489279 mm")),
    Sketcher.Constraint("DistanceX", 29, 2, -1, 1, Q("20.174841 mm")),
    Sketcher.Constraint("DistanceX", 33, 2, -1, 1, Q("22.441468 mm")),
    Sketcher.Constraint("DistanceX", 34, 2, -1, 1, Q("22.79647 mm")),
    Sketcher.Constraint("DistanceX", 35, 2, -1, 1, Q("13.13387 mm")),
    Sketcher.Constraint("DistanceY", 35, 2, -1, 1, Q("2.646941 mm")),
    Sketcher.Constraint("DistanceY", 36, 2, -1, 1, Q("3.666521 mm")),
    Sketcher.Constraint("DistanceX", 37, 2, -1, 1, Q("21.677251 mm")),
    Sketcher.Constraint("DistanceX", 42, 2, -1, 1, Q("15.66677 mm")),
    Sketcher.Constraint("DistanceY", 42, 2, -1, 1, Q("16.652308 mm")),
    Sketcher.Constraint("DistanceY", 44, 2, -1, 1, Q("11.391159 mm")),
    Sketcher.Constraint("DistanceY", 45, 2, -1, 1, Q("19.161862 mm")),
    Sketcher.Constraint("DistanceX", 46, 2, -1, 1, Q("8.593321 mm")),
    Sketcher.Constraint("DistanceY", 50, 2, -1, 1, Q("22.860839 mm")),
    Sketcher.Constraint("DistanceX", -1, 1, 51, 2, Q("1.423809 mm")),
    Sketcher.Constraint("DistanceY", 54, 2, -1, 1, Q("21.44689 mm")),
    Sketcher.Constraint("DistanceX", -1, 1, 55, 2, Q("6.14015 mm")),
    Sketcher.Constraint("DistanceY", 56, 2, -1, 1, Q("11.391159 mm")),
    Sketcher.Constraint("DistanceY", 57, 2, -1, 1, Q("19.161862 mm")),
    Sketcher.Constraint("DistanceY", 58, 2, -1, 1, Q("17.13642 mm")),
    Sketcher.Constraint("DistanceX", -1, 1, 59, 2, Q("10.027229 mm")),
    Sketcher.Constraint("DistanceY", 62, 2, -1, 1, Q("10.511581 mm")),
    Sketcher.Constraint("DistanceY", 64, 2, -1, 1, Q("3.666521 mm")),
    Sketcher.Constraint("DistanceX", -1, 1, 65, 2, Q("21.677251 mm")),
    Sketcher.Constraint("DistanceY", 65, 2, -1, 1, Q("6.16771 mm")),
    Sketcher.Constraint("DistanceY", -1, 1, 67, 2, Q("0.18853 mm")),
    Sketcher.Constraint("Distance", 3, Q("9.703997 mm")),
    Sketcher.Constraint("Distance", 7, Q("9.703996 mm")),
    Sketcher.Constraint("Distance", 11, Q("9.703996 mm")),
    Sketcher.Constraint("Distance", 15, Q("9.703996 mm")),
    Sketcher.Constraint("Distance", 23, Q("9.703996 mm")),
    Sketcher.Constraint("Distance", 27, Q("9.703996 mm")),
    Sketcher.Constraint("Distance", 31, Q("9.703996 mm")),
    Sketcher.Constraint("Distance", 39, Q("9.703996 mm")),
    Sketcher.Constraint("Distance", 43, Q("9.703996 mm")),
    Sketcher.Constraint("Distance", 47, Q("9.703996 mm")),
    Sketcher.Constraint("Distance", 51, Q("9.703996 mm")),
    Sketcher.Constraint("Distance", 55, Q("9.703996 mm")),
    Sketcher.Constraint("Distance", 59, Q("9.703996 mm")),
    Sketcher.Constraint("Distance", 63, Q("9.703996 mm")),
    Sketcher.Constraint("Distance", 67, Q("9.703996 mm")),
    Sketcher.Constraint("DistanceX", 0, 3, -1, 1, Q("0.000724 mm")),
    Sketcher.Constraint("DistanceX", -1, 1, 2, 3, Q("22.263967 mm")),
    Sketcher.Constraint("DistanceY", -1, 1, 4, 3, Q("0.000384 mm")),
    Sketcher.Constraint("DistanceX", -1, 1, 6, 3, Q("19.317354 mm")),
    Sketcher.Constraint("DistanceX", -1, 1, 8, 3, Q("0.000485 mm")),
    Sketcher.Constraint("DistanceX", -1, 1, 10, 3, Q("13.761825 mm")),
    Sketcher.Constraint("DistanceX", -1, 1, 14, 3, Q("6.347685 mm")),
    Sketcher.Constraint("DistanceY", -1, 1, 14, 3, Q("21.710632 mm")),
    Sketcher.Constraint("DistanceX", 22, 3, -1, 1, Q("9.935363 mm")),
    Sketcher.Constraint("DistanceX", 26, 3, -1, 1, Q("16.605155 mm")),
    Sketcher.Constraint("DistanceX", 28, 3, -1, 1, Q("0.000798 mm")),
    Sketcher.Constraint("DistanceX", 38, 3, -1, 1, Q("21.150793 mm")),
    Sketcher.Constraint("DistanceX", 42, 3, -1, 1, Q("16.826085 mm")),
    Sketcher.Constraint("DistanceY", 44, 3, -1, 1, Q("0.000286 mm")),
    Sketcher.Constraint("DistanceX", 46, 3, -1, 1, Q("10.228922 mm")),
    Sketcher.Constraint("DistanceX", 50, 3, -1, 1, Q("2.250285 mm")),
    Sketcher.Constraint("DistanceY", 52, 3, -1, 1, Q("0.000173 mm")),
    Sketcher.Constraint("DistanceX", -1, 1, 54, 3, Q("6.032265 mm")),
    Sketcher.Constraint("DistanceY", 54, 3, -1, 1, Q("21.800378 mm")),
    Sketcher.Constraint("DistanceX", 60, 3, -1, 1, Q("0.000285 mm")),
    Sketcher.Constraint("DistanceX", -1, 1, 62, 3, Q("19.144717 mm")),
    Sketcher.Constraint("DistanceX", 64, 3, -1, 1, Q("0.000434 mm")),
    Sketcher.Constraint("DistanceX", -1, 1, 2, 2, Q("22.086467 mm")),
    Sketcher.Constraint("DistanceX", -1, 1, 4, 2, Q("11.993345 mm")),
    Sketcher.Constraint("DistanceX", -1, 1, 12, 2, Q("4.839895 mm")),
    Sketcher.Constraint("DistanceX", -1, 1, 15, 2, Q("1.048358 mm")),
    Sketcher.Constraint("DistanceX", 20, 2, -1, 1, Q("4.839895 mm")),
    Sketcher.Constraint("DistanceX", 28, 2, -1, 1, Q("11.993345 mm")),
    Sketcher.Constraint("DistanceX", 32, 2, -1, 1, Q("13.340788 mm")),
    Sketcher.Constraint("DistanceX", 40, 2, -1, 1, Q("10.691788 mm")),
    Sketcher.Constraint("DistanceX", 48, 2, -1, 1, Q("2.461865 mm")),
    Sketcher.Constraint("DistanceX", -1, 1, 52, 2, Q("2.461865 mm")),
    Sketcher.Constraint("DistanceX", -1, 1, 60, 2, Q("10.691788 mm")),
])
pad1 = body.newObject("PartDesign::Pad", "Pad")
pad1.Profile = sketch1
pad1.setExpression("Length", "Params.pad1_length")

sketch2 = body.newObject("Sketcher::SketchObject", "Sketch001")
sketch2.AttachmentSupport = (doc.getObject("XY_Plane"), [""])
sketch2.MapMode = "FlatFace"
sketch2.AttachmentOffset = App.Placement(Vector(0, 0, 1 * 25.4), App.Rotation())
sketch2.addGeometry(Part.Circle(Vector(0, 0, 0), Vector(0, 0, 1), 1.651), False)
sketch2.addConstraint([
    Sketcher.Constraint("Coincident", 0, 3, -1, 1),
    Sketcher.Constraint("Diameter", 0, Q("0.13 in")),
])
sketch2.setExpression("Constraints[1]", "Params.sketch2_diameter")
pocket1 = body.newObject("PartDesign::Pocket", "Pocket")
pocket1.Profile = sketch2
pocket1.setExpression("Length", "Params.pocket1_length")

doc.recompute()
